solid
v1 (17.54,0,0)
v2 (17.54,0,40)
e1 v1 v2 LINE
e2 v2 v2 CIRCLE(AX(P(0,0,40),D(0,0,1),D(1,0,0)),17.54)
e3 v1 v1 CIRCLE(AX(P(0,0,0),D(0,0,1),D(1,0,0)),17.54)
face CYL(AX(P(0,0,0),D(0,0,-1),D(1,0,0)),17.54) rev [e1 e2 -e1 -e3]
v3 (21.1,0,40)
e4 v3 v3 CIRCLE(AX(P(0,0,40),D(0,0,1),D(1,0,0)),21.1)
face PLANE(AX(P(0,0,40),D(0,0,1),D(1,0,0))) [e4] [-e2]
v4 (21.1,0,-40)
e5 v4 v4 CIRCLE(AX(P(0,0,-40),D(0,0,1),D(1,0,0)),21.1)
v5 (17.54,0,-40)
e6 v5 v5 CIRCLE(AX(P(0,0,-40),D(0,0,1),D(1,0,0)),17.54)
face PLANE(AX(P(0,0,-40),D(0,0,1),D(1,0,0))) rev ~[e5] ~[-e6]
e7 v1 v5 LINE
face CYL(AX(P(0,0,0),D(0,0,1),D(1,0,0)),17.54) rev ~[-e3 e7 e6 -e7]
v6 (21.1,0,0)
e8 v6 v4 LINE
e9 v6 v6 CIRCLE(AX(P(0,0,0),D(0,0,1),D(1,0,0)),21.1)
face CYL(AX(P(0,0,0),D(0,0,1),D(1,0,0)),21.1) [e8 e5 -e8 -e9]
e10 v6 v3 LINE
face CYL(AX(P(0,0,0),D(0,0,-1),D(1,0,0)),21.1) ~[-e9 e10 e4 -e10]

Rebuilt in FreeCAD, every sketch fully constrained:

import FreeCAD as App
import Part
import Sketcher
from FreeCAD import Vector

doc = App.newDocument("Part")
body = doc.addObject("PartDesign::Body", "Body")

sketch1 = body.newObject("Sketcher::SketchObject", "Sketch")
sketch1.AttachmentSupport = (doc.getObject("XY_Plane"), [""])
sketch1.MapMode = "FlatFace"
sketch1.addGeometry([
    Part.Circle(Vector(0, 0, 0), Vector(0, 0, 1), 21),
    Part.Circle(Vector(0, 0, 0), Vector(0, 0, 1), 18),
], False)
sketch1.addConstraint([
    Sketcher.Constraint("Coincident", 0, 3, -1, 1),
    Sketcher.Constraint("Coincident", 1, 3, -1, 1),
    Sketcher.Constraint("Diameter", 0, 42.2),
    Sketcher.Constraint("Diameter", 1, 35.08),
])
pad1 = body.newObject("PartDesign::Pad", "Pad")
pad1.Profile = sketch1
pad1.Length = 80
pad1.Midplane = True

doc.recompute()
